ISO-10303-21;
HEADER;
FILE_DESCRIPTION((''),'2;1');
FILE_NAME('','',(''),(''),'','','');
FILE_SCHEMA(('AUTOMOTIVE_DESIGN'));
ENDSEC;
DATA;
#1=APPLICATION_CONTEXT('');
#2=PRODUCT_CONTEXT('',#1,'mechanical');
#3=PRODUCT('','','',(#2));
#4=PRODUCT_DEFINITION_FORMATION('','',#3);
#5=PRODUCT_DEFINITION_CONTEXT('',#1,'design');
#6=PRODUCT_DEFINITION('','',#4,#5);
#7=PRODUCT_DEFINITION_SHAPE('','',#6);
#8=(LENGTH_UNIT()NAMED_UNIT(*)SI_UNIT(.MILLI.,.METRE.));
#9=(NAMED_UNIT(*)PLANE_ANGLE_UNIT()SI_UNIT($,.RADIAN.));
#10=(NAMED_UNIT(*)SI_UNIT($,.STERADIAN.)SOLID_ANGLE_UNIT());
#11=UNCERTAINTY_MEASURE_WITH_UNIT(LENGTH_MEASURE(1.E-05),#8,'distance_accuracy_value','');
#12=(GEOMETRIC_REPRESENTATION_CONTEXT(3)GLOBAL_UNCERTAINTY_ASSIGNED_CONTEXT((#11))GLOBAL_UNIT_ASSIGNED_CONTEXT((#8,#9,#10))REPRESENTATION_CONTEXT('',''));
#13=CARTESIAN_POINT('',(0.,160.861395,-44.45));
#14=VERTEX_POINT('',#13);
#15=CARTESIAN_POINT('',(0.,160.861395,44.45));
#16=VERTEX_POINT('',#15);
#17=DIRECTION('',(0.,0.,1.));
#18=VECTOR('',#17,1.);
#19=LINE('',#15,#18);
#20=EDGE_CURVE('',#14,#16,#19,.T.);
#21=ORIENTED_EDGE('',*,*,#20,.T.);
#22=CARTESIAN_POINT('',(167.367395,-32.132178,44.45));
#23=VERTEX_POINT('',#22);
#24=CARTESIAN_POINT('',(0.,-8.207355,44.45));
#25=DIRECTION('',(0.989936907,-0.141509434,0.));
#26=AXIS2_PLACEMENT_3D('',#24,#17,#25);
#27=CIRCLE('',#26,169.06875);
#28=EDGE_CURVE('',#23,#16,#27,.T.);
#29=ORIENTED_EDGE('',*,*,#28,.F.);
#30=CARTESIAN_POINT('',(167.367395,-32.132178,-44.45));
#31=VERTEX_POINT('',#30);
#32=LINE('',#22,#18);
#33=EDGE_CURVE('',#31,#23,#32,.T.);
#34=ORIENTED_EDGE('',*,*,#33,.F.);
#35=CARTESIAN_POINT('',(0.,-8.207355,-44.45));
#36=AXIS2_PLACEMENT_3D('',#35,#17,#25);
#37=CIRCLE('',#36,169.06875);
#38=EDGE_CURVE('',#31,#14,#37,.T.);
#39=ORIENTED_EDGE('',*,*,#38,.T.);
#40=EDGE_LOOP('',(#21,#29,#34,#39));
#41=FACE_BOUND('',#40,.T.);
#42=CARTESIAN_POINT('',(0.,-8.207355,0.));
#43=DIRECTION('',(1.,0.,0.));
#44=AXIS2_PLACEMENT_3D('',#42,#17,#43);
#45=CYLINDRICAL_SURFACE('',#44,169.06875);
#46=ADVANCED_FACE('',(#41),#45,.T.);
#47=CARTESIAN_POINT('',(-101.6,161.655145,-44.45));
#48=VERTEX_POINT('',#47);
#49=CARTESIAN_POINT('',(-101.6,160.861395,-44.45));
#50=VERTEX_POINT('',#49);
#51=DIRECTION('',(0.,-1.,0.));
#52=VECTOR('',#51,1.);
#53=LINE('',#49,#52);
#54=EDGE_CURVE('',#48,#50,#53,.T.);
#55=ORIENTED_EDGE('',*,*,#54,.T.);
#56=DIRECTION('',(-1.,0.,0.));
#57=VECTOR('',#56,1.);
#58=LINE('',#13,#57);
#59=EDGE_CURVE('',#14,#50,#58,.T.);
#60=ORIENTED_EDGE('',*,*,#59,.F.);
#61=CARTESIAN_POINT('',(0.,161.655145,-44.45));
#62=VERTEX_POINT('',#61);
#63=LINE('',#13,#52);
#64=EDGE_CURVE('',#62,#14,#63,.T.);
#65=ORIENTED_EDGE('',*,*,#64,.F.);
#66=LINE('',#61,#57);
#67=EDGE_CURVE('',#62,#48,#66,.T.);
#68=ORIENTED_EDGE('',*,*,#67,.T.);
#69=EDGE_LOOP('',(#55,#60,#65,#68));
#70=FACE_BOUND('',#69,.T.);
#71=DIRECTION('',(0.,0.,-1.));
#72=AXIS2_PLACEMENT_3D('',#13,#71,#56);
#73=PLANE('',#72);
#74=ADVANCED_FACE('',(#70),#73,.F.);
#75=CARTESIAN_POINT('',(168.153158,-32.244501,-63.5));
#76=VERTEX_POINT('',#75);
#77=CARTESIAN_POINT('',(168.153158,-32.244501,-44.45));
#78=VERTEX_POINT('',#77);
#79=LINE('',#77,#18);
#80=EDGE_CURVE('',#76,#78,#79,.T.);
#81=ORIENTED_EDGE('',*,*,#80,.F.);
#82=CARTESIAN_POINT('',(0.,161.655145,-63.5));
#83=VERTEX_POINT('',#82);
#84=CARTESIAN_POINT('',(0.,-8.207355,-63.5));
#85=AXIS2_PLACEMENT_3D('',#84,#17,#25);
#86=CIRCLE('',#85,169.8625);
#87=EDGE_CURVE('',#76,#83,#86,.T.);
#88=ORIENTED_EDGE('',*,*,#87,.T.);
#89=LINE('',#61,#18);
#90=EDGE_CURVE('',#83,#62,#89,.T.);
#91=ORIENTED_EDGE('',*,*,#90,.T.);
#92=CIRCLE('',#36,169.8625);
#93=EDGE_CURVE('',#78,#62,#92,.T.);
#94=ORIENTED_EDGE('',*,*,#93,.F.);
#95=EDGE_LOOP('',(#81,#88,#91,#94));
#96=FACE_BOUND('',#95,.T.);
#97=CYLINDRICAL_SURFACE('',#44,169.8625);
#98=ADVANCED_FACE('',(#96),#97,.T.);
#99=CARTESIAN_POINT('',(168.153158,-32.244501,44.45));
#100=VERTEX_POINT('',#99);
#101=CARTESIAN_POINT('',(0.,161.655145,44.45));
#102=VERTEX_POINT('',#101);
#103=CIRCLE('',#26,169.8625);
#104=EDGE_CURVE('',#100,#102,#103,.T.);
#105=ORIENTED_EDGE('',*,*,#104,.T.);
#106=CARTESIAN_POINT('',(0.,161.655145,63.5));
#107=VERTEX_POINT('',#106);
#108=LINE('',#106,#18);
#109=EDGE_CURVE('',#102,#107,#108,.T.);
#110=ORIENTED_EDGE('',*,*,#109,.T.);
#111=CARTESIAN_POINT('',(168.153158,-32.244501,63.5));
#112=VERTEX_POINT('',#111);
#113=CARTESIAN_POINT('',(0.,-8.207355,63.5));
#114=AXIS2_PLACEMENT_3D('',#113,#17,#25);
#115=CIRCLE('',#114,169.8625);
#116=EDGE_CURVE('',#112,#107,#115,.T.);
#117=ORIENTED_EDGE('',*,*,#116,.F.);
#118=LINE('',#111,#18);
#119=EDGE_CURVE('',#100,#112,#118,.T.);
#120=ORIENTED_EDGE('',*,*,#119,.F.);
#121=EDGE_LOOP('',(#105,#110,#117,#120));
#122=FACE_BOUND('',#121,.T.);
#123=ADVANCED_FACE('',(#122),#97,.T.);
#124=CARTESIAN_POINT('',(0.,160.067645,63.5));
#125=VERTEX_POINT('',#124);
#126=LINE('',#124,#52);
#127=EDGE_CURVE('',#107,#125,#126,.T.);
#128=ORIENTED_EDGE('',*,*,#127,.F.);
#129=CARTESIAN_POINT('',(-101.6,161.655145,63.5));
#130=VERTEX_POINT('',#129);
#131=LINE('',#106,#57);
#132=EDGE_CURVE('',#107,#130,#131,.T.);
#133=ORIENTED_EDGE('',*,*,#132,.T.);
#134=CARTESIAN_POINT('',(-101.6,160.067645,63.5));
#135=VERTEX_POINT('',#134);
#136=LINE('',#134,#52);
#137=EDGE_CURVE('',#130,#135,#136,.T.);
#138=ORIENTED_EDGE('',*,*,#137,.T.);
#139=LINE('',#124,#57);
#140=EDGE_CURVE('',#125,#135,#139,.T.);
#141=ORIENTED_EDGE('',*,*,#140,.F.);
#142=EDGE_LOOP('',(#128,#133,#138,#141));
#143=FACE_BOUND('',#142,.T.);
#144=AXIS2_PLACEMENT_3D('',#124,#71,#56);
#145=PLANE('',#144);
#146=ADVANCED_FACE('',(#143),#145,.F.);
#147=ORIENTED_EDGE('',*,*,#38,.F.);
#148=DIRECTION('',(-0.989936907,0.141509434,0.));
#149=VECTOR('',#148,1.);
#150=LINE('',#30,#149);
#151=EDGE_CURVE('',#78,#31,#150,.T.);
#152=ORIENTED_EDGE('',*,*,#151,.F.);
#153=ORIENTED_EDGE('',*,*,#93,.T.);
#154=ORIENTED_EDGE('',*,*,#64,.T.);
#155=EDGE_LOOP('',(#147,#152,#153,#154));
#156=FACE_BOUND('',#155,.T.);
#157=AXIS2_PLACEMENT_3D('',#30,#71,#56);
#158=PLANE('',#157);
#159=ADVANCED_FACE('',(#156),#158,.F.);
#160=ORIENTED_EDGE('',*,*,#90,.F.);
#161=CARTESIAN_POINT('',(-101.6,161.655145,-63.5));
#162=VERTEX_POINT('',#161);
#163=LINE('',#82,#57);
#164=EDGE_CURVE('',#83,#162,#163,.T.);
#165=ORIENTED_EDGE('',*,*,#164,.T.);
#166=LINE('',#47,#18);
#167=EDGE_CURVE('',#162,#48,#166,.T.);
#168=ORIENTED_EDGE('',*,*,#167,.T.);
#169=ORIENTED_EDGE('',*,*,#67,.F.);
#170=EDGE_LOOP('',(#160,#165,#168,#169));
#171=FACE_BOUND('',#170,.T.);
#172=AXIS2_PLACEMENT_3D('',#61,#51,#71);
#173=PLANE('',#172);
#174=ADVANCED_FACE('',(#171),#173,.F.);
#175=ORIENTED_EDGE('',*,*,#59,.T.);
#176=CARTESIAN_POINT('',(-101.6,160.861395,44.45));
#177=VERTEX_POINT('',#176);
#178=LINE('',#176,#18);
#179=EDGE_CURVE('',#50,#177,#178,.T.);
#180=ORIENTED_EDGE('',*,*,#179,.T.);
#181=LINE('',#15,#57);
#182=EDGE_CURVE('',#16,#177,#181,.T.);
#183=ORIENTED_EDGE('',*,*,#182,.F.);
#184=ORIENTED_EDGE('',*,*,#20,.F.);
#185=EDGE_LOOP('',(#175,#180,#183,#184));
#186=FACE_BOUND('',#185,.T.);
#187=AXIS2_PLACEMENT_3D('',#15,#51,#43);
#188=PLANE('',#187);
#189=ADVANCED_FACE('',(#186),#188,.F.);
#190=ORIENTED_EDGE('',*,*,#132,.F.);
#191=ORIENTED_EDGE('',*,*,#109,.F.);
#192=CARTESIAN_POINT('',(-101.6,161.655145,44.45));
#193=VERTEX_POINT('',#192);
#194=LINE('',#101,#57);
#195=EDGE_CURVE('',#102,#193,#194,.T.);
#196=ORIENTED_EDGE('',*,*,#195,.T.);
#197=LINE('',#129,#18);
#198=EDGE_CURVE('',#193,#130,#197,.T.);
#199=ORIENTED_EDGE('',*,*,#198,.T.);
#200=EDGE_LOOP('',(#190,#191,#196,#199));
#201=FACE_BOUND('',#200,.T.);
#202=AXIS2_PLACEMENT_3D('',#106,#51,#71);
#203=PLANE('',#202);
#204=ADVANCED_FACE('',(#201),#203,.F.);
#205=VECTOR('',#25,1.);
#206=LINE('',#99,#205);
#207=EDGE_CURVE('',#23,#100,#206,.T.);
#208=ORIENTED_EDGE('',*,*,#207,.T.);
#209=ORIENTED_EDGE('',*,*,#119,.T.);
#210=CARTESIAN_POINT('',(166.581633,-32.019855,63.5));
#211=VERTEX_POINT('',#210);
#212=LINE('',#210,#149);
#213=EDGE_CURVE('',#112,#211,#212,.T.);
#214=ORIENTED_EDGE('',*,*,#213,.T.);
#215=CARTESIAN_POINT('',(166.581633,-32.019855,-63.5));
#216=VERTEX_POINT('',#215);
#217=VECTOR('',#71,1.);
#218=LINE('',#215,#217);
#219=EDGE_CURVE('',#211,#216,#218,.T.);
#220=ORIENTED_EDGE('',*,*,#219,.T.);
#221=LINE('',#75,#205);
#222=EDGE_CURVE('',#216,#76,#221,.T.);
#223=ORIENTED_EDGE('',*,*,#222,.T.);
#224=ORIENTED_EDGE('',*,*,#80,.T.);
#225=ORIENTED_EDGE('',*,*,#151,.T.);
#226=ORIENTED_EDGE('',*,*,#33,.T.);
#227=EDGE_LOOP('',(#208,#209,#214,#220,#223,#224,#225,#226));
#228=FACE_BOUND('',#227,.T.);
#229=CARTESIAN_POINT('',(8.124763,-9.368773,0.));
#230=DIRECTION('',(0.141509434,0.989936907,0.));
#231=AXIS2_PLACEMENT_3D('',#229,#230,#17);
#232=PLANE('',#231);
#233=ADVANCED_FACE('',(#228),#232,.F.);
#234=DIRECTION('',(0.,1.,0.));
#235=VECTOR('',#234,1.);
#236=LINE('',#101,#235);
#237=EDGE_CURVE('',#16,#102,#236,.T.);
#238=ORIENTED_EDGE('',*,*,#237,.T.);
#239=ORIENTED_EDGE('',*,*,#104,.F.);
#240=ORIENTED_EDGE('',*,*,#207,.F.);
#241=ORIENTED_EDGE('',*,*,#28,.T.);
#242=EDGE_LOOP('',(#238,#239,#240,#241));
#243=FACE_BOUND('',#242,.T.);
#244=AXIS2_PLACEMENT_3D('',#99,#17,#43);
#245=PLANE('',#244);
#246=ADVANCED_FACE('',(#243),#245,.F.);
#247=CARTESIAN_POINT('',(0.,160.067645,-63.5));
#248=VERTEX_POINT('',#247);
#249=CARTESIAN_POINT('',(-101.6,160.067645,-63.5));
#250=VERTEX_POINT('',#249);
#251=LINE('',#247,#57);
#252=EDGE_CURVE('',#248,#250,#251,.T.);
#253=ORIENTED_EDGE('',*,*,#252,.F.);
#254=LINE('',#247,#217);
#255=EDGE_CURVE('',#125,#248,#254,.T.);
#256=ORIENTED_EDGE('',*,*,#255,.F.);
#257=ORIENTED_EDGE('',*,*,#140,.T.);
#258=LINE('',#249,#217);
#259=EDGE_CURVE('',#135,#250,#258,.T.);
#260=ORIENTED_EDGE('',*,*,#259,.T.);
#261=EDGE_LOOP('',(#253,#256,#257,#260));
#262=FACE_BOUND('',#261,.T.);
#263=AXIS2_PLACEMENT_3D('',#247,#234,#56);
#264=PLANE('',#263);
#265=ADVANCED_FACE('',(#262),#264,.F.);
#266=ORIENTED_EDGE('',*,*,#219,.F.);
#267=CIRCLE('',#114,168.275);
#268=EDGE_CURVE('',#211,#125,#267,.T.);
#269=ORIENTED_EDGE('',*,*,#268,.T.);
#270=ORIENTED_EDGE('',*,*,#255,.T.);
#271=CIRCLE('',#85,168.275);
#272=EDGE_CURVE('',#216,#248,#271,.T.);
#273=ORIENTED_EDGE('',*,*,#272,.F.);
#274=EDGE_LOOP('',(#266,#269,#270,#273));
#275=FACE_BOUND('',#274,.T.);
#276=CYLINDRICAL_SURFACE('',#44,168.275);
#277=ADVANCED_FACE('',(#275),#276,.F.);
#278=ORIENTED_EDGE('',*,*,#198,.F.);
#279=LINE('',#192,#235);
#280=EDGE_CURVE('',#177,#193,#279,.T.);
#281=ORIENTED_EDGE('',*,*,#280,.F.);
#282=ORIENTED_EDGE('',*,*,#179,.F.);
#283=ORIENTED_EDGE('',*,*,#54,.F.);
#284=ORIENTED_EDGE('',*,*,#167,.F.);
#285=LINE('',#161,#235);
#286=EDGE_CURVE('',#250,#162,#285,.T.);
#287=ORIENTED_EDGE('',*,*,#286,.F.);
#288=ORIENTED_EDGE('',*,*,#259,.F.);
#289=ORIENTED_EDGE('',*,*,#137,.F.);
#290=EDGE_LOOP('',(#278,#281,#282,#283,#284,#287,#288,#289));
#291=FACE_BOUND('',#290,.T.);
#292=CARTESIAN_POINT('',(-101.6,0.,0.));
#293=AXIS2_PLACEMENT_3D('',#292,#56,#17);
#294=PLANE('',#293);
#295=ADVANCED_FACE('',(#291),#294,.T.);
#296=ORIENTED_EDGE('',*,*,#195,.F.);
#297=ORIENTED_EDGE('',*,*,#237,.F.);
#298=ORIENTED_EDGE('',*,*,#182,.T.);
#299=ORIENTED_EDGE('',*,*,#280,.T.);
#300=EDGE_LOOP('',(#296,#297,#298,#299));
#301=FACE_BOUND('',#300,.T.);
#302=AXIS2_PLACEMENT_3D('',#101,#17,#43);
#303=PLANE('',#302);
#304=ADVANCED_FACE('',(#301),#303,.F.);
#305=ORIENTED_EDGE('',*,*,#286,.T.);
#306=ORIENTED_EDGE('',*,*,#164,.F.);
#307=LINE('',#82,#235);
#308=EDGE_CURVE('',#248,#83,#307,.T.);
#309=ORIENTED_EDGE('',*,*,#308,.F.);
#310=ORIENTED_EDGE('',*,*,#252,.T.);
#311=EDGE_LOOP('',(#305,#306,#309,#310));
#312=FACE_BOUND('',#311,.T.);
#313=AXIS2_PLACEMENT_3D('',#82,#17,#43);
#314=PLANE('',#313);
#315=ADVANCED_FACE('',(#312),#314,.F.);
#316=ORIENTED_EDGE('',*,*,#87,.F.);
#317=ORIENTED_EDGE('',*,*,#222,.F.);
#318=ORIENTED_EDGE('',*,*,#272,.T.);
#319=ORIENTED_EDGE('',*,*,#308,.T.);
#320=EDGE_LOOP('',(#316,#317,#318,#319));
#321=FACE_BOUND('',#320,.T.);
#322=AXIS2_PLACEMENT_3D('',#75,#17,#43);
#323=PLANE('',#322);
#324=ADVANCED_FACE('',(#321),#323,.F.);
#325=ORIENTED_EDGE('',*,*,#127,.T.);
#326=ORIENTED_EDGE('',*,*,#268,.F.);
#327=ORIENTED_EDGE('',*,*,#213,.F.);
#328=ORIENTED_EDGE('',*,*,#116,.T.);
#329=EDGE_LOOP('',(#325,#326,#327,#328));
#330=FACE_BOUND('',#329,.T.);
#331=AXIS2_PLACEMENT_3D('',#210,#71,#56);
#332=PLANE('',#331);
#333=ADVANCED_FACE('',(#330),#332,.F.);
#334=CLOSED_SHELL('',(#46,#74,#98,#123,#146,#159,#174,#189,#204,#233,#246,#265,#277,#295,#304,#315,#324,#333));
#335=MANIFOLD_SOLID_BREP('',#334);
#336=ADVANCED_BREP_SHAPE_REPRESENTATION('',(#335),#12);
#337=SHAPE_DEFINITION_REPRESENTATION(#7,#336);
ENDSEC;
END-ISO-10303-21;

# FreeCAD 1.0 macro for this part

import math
import FreeCAD as App
import Part
import Sketcher
Q = App.Units.Quantity


def add_polygon(sketch, points):
    """Adds a closed chain of lines whose ends are joined by coincident constraints."""
    first, n = sketch.GeometryCount, len(points)
    for a, b in zip(points, points[1:] + points[:1]):
        sketch.addGeometry(Part.LineSegment(App.Vector(*a, 0), App.Vector(*b, 0)), False)
    for i in range(n):
        sketch.addConstraint(Sketcher.Constraint("Coincident", first + i, 2, first + (i + 1) % n, 1))

doc = App.newDocument("Part")
body = doc.addObject("PartDesign::Body", "Body")

# Sketch on YZ plane
sketch1 = body.newObject("Sketcher::SketchObject", "Sketch")
sketch1.AttachmentSupport = (doc.getObject("YZ_Plane"), [""])
sketch1.MapMode = "FlatFace"
sketch1.AttachmentOffset = App.Placement(App.Vector(0, 0, -4 * 25.4), App.Rotation())
add_polygon(sketch1, [(160.1, 63.5), (160.1, -63.5), (161.7, -63.5), (161.7, -44.5), (160.9, -44.5), (160.9, 44.5), (161.7, 44.5), (161.7, 63.5)])  # lines 0-7
sketch1.addConstraint(Sketcher.Constraint("Vertical", 0))
sketch1.addConstraint(Sketcher.Constraint("Horizontal", 1))
sketch1.addConstraint(Sketcher.Constraint("Vertical", 2))
sketch1.addConstraint(Sketcher.Constraint("Horizontal", 3))
sketch1.addConstraint(Sketcher.Constraint("Vertical", 4))
sketch1.addConstraint(Sketcher.Constraint("Horizontal", 5))
sketch1.addConstraint(Sketcher.Constraint("Vertical", 6))
sketch1.addConstraint(Sketcher.Constraint("Horizontal", 7))
sketch1.addConstraint(Sketcher.Constraint("Symmetric", 2, 2, 5, 2, -1))
sketch1.addConstraint(Sketcher.Constraint("Equal", 2, 6))
sketch1.addConstraint(Sketcher.Constraint("DistanceY", 0, 2, 0, 1, Q("5 in")))
sketch1.addConstraint(Sketcher.Constraint("DistanceY", 4, 1, 4, 2, Q("3.5 in")))
sketch1.addConstraint(Sketcher.Constraint("DistanceX", 1, 1, 1, 2, Q("0.0625 in")))
sketch1.addConstraint(Sketcher.Constraint("DistanceX", 3, 2, 3, 1, Q("0.03125 in")))
sketch1.addConstraint(Sketcher.Constraint("DistanceX", -1, 1, 0, 2, 160.067645))

# Sketch on XY plane
sketch2 = body.newObject("Sketcher::SketchObject", "Sketch001")
sketch2.AttachmentSupport = (doc.getObject("XY_Plane"), [""])
sketch2.MapMode = "FlatFace"
sketch2.addGeometry(Part.LineSegment(App.Vector(-102, 160, 0), App.Vector(0, 160, 0)), False)
sketch2.addGeometry(Part.ArcOfCircle(Part.Circle(App.Vector(0, -8, 0), App.Vector(0, 0, 1), 168), math.radians(-8), math.radians(90)), False)
sketch2.addConstraint(Sketcher.Constraint("Tangent", 0, 2, 1, 2))
sketch2.addConstraint(Sketcher.Constraint("Horizontal", 0))
sketch2.addConstraint(Sketcher.Constraint("PointOnObject", 1, 3, -2))
sketch2.addConstraint(Sketcher.Constraint("DistanceX", 0, 1, 0, 2, Q("4 in")))
sketch2.addConstraint(Sketcher.Constraint("Radius", 1, Q("6.625 in")))
sketch2.addConstraint(Sketcher.Constraint("DistanceY", 1, 1, 1, 3, Q("0.9375 in")))
sketch2.addConstraint(Sketcher.Constraint("DistanceY", 1, 3, -1, 1, 8.207355))
doc.recompute()

additivepipe = body.newObject("PartDesign::AdditivePipe", "AdditivePipe")
additivepipe.Profile = sketch1
additivepipe.Spine = (sketch2, ["Edge1", "Edge2"])

doc.recompute()
